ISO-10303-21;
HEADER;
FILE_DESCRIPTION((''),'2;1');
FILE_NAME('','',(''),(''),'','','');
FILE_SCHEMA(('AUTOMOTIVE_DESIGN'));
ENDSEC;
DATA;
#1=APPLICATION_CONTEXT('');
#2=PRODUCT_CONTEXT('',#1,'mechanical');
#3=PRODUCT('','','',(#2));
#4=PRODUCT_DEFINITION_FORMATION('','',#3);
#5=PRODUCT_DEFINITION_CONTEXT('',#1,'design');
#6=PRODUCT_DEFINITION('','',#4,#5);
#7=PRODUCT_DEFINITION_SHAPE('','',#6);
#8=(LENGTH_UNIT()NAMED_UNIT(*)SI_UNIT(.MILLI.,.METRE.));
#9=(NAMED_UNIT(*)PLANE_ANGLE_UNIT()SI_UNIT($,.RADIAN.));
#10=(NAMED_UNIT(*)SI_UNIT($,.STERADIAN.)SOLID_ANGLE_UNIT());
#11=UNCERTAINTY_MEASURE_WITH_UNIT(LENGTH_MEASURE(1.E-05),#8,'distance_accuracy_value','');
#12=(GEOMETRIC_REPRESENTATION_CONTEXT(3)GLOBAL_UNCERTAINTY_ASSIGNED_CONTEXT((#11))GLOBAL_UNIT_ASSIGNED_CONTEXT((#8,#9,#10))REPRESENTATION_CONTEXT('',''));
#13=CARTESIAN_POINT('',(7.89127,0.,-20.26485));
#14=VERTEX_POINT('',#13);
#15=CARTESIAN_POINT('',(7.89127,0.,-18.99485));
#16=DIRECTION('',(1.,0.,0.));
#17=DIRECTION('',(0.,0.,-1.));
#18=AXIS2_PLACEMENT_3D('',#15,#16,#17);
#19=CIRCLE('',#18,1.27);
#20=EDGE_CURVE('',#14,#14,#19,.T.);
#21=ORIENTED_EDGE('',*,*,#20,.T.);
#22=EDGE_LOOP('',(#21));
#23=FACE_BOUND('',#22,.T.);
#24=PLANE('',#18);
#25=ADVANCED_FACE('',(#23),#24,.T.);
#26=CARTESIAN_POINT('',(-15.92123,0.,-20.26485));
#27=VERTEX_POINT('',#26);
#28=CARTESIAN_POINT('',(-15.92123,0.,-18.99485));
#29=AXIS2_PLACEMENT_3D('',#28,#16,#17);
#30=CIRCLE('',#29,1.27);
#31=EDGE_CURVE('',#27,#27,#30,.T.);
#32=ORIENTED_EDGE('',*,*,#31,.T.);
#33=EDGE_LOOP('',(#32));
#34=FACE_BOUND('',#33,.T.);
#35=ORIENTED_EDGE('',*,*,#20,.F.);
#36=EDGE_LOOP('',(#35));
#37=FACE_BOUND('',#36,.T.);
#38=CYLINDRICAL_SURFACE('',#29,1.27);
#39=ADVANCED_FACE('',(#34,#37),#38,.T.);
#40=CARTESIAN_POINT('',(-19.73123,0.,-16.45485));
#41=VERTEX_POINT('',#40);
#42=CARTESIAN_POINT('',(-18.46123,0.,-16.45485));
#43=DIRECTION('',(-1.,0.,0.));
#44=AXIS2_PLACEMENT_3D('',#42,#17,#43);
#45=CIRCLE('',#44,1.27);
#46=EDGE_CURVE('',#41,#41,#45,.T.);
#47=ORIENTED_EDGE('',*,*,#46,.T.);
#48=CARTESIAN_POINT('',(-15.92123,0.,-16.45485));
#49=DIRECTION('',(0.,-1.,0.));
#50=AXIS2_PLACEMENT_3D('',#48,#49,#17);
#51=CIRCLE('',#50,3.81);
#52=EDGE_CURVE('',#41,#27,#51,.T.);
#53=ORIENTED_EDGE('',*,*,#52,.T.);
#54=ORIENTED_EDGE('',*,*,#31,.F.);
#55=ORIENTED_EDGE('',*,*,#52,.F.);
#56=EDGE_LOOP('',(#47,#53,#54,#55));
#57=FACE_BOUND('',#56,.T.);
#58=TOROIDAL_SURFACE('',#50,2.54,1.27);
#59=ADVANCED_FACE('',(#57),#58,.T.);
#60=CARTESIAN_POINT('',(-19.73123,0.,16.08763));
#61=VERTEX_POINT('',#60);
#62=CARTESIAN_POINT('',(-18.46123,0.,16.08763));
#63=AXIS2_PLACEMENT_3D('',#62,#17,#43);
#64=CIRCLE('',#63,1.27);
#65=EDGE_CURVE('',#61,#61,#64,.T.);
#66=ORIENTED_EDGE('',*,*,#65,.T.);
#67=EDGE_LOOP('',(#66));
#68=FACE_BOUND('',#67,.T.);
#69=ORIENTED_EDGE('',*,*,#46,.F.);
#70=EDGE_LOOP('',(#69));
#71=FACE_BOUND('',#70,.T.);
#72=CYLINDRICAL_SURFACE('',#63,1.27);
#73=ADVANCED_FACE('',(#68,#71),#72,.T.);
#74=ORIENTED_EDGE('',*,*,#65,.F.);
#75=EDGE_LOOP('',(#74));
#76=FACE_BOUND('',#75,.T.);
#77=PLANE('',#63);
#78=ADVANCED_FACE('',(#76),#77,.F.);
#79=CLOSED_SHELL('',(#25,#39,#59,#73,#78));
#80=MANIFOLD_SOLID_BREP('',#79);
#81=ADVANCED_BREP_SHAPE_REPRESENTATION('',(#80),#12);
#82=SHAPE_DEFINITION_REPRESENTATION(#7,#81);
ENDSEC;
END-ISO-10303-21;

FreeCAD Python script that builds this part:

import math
import FreeCAD as App
import Part
import Sketcher
Q = App.Units.Quantity

doc = App.newDocument("Part")
body = doc.addObject("PartDesign::Body", "Body")

# Sketch on YZ plane
sketch1 = body.newObject("Sketcher::SketchObject", "Sketch")
sketch1.AttachmentSupport = (doc.getObject("YZ_Plane"), [""])
sketch1.MapMode = "FlatFace"
sketch1.addGeometry(Part.Circle(App.Vector(0, -19, 0), App.Vector(0, 0, 1), 1.3), False)
sketch1.addConstraint(Sketcher.Constraint("PointOnObject", 0, 3, -2))
sketch1.addConstraint(Sketcher.Constraint("Diameter", 0, Q("0.1 in")))
sketch1.addConstraint(Sketcher.Constraint("DistanceY", 0, 3, -1, 1, Q("18.99485 mm")))

# Sketch on XZ plane
sketch2 = body.newObject("Sketcher::SketchObject", "Sketch001")
sketch2.AttachmentSupport = (doc.getObject("XZ_Plane"), [""])
sketch2.MapMode = "FlatFace"
sketch2.addGeometry(Part.LineSegment(App.Vector(7.9, -19, 0), App.Vector(-15.9, -19, 0)), False)
sketch2.addGeometry(Part.ArcOfCircle(Part.Circle(App.Vector(-15.9, -16.5, 0), App.Vector(0, 0, 1), 2.5), math.radians(-180), math.radians(-90)), False)
sketch2.addGeometry(Part.LineSegment(App.Vector(-18.5, -16.5, 0), App.Vector(-18.5, 16.1, 0)), False)
sketch2.addConstraint(Sketcher.Constraint("Tangent", 0, 2, 1, 2))
sketch2.addConstraint(Sketcher.Constraint("Tangent", 1, 1, 2, 1))
sketch2.addConstraint(Sketcher.Constraint("Horizontal", 0))
sketch2.addConstraint(Sketcher.Constraint("Vertical", 2))
sketch2.addConstraint(Sketcher.Constraint("Radius", 1, Q("0.1 in")))
sketch2.addConstraint(Sketcher.Constraint("DistanceX", 0, 2, 0, 1, Q("0.9375 in")))
sketch2.addConstraint(Sketcher.Constraint("DistanceY", 2, 1, 2, 2, Q("1.2812 in")))
sketch2.addConstraint(Sketcher.Constraint("DistanceX", 1, 3, -1, 1, Q("15.92123 mm")))
sketch2.addConstraint(Sketcher.Constraint("DistanceY", 1, 3, -1, 1, Q("16.45485 mm")))
doc.recompute()

additivepipe = body.newObject("PartDesign::AdditivePipe", "AdditivePipe")
additivepipe.Profile = sketch1
additivepipe.Spine = (sketch2, ["Edge1", "Edge2", "Edge3"])

doc.recompute()
